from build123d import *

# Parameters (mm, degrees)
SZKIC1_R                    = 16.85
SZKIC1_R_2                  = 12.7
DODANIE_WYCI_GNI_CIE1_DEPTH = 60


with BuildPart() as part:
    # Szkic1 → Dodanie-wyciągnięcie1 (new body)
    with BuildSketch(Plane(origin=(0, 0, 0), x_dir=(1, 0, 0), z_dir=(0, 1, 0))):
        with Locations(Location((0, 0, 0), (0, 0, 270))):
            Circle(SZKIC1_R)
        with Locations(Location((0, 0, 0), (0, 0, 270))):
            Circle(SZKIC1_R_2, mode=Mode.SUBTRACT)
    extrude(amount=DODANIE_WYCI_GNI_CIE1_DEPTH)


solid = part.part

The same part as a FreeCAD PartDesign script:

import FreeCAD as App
import Part
import Sketcher
from FreeCAD import Vector

doc = App.newDocument("Part")
params = doc.addObject("Spreadsheet::Sheet", "Params")
for row, (alias, value) in enumerate([
    ("sketch1_diameter", "33.7 mm"),
    ("sketch1_diameter2", "25.4 mm"),
    ("pad1_length", "60 mm"),
], start=1):
    params.set(f"A{row}", alias)
    params.set(f"B{row}", "=" + value)
    params.setAlias(f"B{row}", alias)

body = doc.addObject("PartDesign::Body", "Body")

sketch1 = doc.addObject("Sketcher::SketchObject", "Sketch")
body.addObject(sketch1)
sketch1.AttachmentSupport = (doc.XZ_Plane, [""])
sketch1.MapMode = "FlatFace"
sketch1.addGeometry(Part.Circle(Vector(0, 0, 0), Vector(0, 0, 1), 17), False)
sketch1.addGeometry(Part.Circle(Vector(0, 0, 0), Vector(0, 0, 1), 13), False)
sketch1.addConstraint(Sketcher.Constraint("Coincident", 0, 3, -1, 1))
sketch1.addConstraint(Sketcher.Constraint("Coincident", 1, 3, -1, 1))
sketch1.addConstraint(Sketcher.Constraint("Diameter", 0, 33.7))
sketch1.addConstraint(Sketcher.Constraint("Diameter", 1, 25.4))
sketch1.setExpression("Constraints[2]", "Params.sketch1_diameter")
sketch1.setExpression("Constraints[3]", "Params.sketch1_diameter2")
pad1 = doc.addObject("PartDesign::Pad", "Pad")
body.addObject(pad1)
pad1.Profile = sketch1
pad1.setExpression("Length", "Params.pad1_length")
pad1.Reversed = True

doc.recompute()
